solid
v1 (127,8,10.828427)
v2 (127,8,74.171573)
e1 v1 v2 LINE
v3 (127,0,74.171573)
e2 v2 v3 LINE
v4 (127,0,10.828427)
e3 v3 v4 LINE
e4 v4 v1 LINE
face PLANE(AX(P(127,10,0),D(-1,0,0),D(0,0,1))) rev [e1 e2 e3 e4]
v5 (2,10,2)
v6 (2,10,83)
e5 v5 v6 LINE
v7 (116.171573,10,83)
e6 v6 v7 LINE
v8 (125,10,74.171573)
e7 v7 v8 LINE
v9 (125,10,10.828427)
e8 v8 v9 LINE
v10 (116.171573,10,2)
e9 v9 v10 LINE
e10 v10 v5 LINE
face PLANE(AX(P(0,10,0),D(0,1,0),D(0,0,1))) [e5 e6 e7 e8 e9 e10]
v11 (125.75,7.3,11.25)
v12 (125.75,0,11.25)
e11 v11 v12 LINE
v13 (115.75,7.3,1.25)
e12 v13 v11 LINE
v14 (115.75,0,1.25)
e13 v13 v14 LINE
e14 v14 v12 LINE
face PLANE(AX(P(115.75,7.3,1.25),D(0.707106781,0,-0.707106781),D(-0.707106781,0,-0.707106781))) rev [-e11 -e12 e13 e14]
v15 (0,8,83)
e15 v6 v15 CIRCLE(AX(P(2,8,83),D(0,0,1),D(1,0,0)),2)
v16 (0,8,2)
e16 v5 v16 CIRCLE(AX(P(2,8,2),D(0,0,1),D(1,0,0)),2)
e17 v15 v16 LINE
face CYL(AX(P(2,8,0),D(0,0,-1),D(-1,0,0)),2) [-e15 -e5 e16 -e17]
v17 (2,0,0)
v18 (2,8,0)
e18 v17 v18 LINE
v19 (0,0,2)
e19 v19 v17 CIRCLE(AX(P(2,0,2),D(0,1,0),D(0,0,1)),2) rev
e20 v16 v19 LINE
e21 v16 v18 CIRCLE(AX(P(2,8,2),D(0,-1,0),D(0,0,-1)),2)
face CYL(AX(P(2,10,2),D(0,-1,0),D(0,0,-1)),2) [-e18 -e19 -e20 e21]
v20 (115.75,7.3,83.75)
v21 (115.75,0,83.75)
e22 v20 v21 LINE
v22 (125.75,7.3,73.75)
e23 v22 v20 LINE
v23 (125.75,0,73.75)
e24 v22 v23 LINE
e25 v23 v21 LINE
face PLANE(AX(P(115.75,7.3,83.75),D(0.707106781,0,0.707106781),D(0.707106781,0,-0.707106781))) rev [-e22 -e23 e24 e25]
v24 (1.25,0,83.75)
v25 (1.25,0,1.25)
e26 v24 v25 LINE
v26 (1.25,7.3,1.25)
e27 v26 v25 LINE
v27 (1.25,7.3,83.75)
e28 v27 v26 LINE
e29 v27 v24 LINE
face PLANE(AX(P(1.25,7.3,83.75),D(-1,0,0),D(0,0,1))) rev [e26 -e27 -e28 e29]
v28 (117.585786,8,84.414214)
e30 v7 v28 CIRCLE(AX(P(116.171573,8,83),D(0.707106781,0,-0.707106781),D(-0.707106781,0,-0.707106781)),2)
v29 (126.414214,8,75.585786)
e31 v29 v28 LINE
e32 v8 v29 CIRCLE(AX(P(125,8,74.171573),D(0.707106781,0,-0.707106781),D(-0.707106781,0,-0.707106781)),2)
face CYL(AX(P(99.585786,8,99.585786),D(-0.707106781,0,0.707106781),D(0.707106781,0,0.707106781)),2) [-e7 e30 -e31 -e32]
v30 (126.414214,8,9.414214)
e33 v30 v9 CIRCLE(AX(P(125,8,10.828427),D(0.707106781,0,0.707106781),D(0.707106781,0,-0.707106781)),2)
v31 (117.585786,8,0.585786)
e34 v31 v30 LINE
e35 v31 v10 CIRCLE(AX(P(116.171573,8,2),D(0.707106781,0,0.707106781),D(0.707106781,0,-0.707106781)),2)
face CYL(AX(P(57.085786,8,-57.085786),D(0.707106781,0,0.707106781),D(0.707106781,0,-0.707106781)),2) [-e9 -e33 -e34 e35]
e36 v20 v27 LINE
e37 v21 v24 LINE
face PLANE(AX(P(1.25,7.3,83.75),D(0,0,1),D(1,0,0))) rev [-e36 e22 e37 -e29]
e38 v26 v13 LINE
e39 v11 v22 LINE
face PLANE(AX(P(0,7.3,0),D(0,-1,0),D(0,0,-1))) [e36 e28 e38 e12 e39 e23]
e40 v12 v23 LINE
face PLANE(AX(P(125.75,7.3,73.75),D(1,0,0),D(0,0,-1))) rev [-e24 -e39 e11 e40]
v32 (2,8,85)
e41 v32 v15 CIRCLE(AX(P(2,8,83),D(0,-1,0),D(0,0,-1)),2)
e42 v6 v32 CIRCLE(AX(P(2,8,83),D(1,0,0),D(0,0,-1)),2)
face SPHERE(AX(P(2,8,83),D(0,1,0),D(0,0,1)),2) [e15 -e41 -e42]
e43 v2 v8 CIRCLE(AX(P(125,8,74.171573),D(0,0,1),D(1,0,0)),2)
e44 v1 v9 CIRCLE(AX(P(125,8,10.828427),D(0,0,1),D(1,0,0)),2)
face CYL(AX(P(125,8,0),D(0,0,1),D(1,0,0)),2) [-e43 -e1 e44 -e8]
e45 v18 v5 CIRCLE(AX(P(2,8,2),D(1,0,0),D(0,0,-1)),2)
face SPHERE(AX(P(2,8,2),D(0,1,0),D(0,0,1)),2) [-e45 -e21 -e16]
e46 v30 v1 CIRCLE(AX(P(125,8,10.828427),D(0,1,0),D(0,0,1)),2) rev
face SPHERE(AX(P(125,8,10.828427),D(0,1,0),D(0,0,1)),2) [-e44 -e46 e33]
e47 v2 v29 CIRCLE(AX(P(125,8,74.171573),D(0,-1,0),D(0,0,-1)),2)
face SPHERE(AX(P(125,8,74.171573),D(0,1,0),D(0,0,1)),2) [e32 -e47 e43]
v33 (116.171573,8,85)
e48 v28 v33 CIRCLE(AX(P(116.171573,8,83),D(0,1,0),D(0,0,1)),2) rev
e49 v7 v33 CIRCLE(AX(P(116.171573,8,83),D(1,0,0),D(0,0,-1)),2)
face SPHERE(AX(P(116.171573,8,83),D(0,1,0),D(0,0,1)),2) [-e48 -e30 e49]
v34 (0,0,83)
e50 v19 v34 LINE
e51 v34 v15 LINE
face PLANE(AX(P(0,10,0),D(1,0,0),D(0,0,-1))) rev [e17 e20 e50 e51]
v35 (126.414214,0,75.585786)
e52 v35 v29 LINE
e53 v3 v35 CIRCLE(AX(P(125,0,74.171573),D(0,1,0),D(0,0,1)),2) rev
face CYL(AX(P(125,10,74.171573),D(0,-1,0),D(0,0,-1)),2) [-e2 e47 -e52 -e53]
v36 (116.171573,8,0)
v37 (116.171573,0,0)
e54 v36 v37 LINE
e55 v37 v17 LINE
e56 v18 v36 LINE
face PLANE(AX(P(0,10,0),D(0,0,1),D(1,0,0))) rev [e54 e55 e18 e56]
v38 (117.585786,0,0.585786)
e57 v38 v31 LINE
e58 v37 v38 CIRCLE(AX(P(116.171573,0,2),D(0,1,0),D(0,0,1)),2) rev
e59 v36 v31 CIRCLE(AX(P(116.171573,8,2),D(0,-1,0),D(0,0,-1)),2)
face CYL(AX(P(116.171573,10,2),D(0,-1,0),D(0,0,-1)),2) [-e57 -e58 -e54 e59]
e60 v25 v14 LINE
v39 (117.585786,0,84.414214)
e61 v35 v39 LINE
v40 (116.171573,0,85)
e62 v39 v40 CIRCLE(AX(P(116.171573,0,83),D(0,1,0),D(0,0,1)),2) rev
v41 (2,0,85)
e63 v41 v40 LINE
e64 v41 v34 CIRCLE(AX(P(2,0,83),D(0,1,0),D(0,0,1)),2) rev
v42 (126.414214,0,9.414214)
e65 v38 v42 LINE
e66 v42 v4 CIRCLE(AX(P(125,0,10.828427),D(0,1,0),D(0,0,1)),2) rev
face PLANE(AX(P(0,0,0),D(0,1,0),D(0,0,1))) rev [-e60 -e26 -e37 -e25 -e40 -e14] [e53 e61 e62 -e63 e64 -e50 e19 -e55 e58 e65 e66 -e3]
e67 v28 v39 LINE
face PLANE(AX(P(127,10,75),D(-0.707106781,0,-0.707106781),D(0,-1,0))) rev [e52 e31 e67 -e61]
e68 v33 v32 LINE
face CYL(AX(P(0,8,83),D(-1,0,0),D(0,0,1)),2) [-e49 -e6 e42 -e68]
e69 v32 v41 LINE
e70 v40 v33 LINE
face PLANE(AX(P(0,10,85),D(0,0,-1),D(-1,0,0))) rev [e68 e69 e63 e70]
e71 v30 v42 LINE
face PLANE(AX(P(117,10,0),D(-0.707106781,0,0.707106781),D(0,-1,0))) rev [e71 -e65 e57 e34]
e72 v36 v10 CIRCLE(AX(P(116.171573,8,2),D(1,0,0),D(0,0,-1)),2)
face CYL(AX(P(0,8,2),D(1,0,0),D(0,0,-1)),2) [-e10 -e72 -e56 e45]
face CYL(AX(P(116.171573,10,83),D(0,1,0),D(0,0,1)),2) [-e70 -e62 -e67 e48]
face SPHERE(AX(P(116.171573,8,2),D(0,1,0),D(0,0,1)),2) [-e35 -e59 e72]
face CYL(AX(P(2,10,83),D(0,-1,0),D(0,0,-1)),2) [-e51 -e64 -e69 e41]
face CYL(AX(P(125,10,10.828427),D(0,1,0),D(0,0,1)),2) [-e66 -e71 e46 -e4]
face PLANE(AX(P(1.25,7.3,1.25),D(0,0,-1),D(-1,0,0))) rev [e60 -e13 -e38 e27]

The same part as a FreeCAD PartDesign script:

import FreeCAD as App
import Part
import Sketcher

V = App.Vector
Q = App.Units.Quantity


def edges_at(feature, points):
    """Names of the edges that pass closest to the given points."""
    edges = feature.Shape.Edges
    near = lambda p: min(range(len(edges)), key=lambda i: edges[i].distToShape(Part.Vertex(*p))[0])
    return sorted({f"Edge{near(p) + 1}" for p in points})


def add_polygon(sketch, points):
    """Adds a closed chain of lines whose ends are joined by coincident constraints."""
    first, n = sketch.GeometryCount, len(points)
    for a, b in zip(points, points[1:] + points[:1]):
        sketch.addGeometry(Part.LineSegment(App.Vector(*a, 0), App.Vector(*b, 0)), False)
    for i in range(n):
        sketch.addConstraint(Sketcher.Constraint("Coincident", first + i, 2, first + (i + 1) % n, 1))

doc = App.newDocument("Part")
body = doc.addObject("PartDesign::Body", "Body")

sketch1 = doc.addObject("Sketcher::SketchObject", "Sketch")
body.addObject(sketch1)
sketch1.AttachmentSupport = (doc.XZ_Plane, [""])
sketch1.MapMode = "FlatFace"
add_polygon(sketch1, [(0, 0), (0, 85), (127, 85), (127, 0)])
sketch1.addConstraint([
    Sketcher.Constraint("Vertical", 0),
    Sketcher.Constraint("Horizontal", 1),
    Sketcher.Constraint("Vertical", 2),
    Sketcher.Constraint("Horizontal", 3),
    Sketcher.Constraint("Coincident", 3, 2, -1, 1),
    Sketcher.Constraint("DistanceX", 1, 1, 1, 2, Q("127 mm")),
    Sketcher.Constraint("DistanceY", 0, 1, 0, 2, Q("85 mm")),
])
pad1 = doc.addObject("PartDesign::Pad", "Pad")
body.addObject(pad1)
pad1.Profile = sketch1
pad1.Length = 10
pad1.Reversed = True
doc.recompute()

chamfer = doc.addObject("PartDesign::Chamfer", "Chamfer")
body.addObject(chamfer)
chamfer.Base = (pad1, edges_at(pad1, [(127, 5, 0), (127, 5, 85)]))
chamfer.Size = 10
doc.recompute()

fillet = doc.addObject("PartDesign::Fillet", "Fillet")
body.addObject(fillet)
fillet.Base = (chamfer, edges_at(chamfer, [
    (127, 5, 10),
    (127, 5, 75),
    (117, 5, 85),
    (117, 5, 0),
    (0, 5, 0),
    (0, 5, 85),
]))
fillet.Radius = 2
doc.recompute()

fillet2 = doc.addObject("PartDesign::Fillet", "Fillet001")
body.addObject(fillet2)
fillet2.Base = (fillet, edges_at(fillet, [
    (127, 10, 42.5),
    (122, 10, 80),
    (59.086, 10, 85),
    (122, 10, 5),
    (59.086, 10, 0),
    (0, 10, 42.5),
    (126.848, 10, 10.063),
    (116.937, 10, 0.152),
    (0.586, 10, 0.586),
    (0.586, 10, 84.414),
    (116.937, 10, 84.848),
    (126.848, 10, 74.937),
]))
fillet2.Radius = 2

sketch2 = doc.addObject("Sketcher::SketchObject", "Sketch001")
body.addObject(sketch2)
sketch2.AttachmentSupport = (doc.XZ_Plane, [""])
sketch2.MapMode = "FlatFace"
add_polygon(sketch2, [(116, 84), (1, 84), (1, 1), (116, 1), (126, 11), (126, 74)])
sketch2.addConstraint([
    Sketcher.Constraint("Horizontal", 0),
    Sketcher.Constraint("Vertical", 1),
    Sketcher.Constraint("Horizontal", 2),
    Sketcher.Constraint("Vertical", 4),
    Sketcher.Constraint("Perpendicular", 3, 5),
    Sketcher.Constraint("Vertical", 2, 2, 5, 2),
    Sketcher.Constraint("Equal", 3, 5),
    Sketcher.Constraint("DistanceX", 0, 2, 0, 1, Q("114.5 mm")),
    Sketcher.Constraint("DistanceY", 1, 2, 1, 1, Q("82.5 mm")),
    Sketcher.Constraint("DistanceY", 4, 1, 4, 2, Q("62.5 mm")),
    Sketcher.Constraint("DistanceX", -1, 1, 0, 2, Q("1.25 mm")),
    Sketcher.Constraint("DistanceY", -1, 1, 0, 2, Q("83.75 mm")),
])
pocket1 = doc.addObject("PartDesign::Pocket", "Pocket")
body.addObject(pocket1)
pocket1.Profile = sketch2
pocket1.Length = 7.3

doc.recompute()
